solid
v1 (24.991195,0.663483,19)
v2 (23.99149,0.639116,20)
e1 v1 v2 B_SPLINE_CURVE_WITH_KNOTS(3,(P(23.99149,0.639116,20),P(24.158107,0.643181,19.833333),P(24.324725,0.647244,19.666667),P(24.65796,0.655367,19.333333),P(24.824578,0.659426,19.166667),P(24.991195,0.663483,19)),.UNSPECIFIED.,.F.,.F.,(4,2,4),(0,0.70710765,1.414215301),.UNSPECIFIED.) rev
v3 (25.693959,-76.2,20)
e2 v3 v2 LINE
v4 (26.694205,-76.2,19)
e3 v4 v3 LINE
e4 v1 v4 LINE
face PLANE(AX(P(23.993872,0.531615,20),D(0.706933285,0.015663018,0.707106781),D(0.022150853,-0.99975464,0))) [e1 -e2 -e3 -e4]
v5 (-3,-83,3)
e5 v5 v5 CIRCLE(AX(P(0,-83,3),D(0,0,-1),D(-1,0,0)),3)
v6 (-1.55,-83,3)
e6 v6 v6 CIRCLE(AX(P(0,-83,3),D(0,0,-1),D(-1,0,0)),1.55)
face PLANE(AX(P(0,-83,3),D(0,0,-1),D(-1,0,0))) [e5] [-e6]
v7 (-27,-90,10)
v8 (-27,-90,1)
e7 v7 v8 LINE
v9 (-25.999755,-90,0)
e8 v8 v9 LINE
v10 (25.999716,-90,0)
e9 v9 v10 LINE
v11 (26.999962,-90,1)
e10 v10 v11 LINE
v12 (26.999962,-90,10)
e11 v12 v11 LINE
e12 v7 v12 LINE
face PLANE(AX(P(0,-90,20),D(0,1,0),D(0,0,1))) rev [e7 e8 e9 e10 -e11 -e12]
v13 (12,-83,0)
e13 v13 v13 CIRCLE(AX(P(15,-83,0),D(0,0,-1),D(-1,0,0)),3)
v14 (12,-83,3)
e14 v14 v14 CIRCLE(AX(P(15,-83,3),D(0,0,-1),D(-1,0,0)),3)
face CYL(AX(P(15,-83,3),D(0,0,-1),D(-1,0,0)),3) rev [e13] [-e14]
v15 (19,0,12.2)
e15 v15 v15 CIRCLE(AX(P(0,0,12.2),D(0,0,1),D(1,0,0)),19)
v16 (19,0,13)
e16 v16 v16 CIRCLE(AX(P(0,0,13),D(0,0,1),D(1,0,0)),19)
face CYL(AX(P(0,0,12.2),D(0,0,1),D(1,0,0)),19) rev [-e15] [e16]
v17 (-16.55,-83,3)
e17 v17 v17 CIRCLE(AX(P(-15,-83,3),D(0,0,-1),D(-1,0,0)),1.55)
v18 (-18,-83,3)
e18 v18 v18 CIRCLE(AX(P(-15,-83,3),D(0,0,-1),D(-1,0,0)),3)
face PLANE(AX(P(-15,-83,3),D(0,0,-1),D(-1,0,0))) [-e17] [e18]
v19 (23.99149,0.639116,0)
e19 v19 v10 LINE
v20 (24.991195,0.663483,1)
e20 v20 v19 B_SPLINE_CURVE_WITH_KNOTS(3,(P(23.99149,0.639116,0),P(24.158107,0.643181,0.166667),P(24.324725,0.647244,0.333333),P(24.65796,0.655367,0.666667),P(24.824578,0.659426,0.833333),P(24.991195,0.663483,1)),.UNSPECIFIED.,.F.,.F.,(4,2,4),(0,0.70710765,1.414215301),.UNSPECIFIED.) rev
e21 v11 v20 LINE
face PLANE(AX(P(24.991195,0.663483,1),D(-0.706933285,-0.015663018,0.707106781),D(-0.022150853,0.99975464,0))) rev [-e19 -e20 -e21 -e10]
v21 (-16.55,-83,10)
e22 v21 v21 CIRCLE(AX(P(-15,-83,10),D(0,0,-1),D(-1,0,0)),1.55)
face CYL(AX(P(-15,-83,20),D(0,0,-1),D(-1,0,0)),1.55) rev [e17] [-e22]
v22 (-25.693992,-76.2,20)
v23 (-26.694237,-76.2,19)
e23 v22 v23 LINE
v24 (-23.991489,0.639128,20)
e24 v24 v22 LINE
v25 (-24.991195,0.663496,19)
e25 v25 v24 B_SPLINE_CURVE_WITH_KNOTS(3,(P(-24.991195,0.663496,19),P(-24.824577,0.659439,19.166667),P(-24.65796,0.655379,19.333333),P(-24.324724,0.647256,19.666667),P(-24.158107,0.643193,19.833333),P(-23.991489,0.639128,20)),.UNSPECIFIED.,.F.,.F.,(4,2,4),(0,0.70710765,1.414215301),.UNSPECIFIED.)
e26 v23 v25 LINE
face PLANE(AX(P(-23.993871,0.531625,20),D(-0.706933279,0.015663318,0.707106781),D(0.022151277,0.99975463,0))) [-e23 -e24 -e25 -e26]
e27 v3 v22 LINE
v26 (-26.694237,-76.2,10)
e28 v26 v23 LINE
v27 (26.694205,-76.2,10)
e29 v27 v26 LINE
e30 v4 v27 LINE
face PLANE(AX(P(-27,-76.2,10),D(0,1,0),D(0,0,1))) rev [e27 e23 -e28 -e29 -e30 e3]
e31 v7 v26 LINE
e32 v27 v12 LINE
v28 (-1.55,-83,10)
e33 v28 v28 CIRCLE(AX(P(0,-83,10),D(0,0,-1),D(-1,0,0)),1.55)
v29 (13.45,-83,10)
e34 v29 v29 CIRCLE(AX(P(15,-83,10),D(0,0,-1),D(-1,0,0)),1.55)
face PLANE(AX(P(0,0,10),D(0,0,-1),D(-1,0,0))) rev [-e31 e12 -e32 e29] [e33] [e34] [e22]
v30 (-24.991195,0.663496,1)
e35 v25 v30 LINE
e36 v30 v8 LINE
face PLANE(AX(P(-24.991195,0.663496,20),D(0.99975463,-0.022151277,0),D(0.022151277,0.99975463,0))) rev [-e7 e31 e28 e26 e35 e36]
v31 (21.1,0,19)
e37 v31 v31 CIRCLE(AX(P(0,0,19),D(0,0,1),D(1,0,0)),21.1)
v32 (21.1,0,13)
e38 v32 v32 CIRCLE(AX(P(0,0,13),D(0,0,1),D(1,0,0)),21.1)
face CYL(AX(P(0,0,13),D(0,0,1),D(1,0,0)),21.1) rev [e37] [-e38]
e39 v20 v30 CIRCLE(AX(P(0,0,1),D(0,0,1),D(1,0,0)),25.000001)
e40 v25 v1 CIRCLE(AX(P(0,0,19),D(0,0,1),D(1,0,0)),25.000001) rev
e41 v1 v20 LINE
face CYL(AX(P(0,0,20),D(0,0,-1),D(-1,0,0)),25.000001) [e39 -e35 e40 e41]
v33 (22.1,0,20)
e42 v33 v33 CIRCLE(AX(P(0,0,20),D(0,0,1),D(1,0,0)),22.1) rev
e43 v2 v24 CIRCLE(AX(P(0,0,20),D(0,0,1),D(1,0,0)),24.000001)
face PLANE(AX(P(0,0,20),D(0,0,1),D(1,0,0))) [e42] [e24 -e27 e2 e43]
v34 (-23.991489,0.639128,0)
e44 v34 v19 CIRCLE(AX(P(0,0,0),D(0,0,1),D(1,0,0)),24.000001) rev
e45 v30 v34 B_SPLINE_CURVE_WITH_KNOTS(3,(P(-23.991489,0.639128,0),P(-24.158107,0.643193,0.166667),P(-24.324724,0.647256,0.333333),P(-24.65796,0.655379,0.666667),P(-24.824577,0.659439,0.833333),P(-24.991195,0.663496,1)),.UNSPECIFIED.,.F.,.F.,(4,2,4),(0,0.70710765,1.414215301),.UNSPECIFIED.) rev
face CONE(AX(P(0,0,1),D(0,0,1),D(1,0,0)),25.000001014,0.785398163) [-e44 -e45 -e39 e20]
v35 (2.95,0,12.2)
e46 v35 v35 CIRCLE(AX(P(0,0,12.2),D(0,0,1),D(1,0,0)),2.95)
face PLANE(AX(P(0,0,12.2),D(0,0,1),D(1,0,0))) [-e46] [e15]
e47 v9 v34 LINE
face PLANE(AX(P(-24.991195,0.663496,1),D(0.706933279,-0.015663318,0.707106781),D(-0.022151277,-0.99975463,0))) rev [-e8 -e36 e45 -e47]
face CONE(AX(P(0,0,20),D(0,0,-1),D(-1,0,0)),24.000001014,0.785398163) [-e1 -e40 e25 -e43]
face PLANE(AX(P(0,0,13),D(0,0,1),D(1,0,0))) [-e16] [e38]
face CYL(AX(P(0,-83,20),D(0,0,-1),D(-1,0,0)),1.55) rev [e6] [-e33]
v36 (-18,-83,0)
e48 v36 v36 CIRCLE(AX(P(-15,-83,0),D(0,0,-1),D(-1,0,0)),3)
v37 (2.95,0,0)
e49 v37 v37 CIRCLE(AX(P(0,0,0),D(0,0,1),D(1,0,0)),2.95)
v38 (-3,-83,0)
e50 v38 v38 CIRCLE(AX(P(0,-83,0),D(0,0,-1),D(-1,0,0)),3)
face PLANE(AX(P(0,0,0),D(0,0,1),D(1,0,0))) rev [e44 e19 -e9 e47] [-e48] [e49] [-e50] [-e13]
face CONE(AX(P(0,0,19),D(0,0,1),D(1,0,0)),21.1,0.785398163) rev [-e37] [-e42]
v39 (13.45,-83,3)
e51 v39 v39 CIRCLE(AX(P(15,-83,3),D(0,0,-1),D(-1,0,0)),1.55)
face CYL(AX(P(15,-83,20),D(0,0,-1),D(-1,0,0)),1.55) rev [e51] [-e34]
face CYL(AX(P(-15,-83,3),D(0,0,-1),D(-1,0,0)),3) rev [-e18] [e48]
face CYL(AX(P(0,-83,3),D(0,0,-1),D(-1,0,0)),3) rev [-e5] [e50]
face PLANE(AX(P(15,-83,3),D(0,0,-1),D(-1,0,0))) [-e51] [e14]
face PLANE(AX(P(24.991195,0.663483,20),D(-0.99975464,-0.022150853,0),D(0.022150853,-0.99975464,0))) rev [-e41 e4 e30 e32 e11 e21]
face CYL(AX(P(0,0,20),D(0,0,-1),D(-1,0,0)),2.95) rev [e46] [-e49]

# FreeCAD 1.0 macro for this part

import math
import FreeCAD as App
import Part
import Sketcher


def edges_at(feature, points):
    """Names of the edges that pass closest to the given points."""
    edges = feature.Shape.Edges
    near = lambda p: min(range(len(edges)), key=lambda i: edges[i].distToShape(Part.Vertex(*p))[0])
    return sorted({f"Edge{near(p) + 1}" for p in points})

doc = App.newDocument("Part")
body = doc.addObject("PartDesign::Body", "Body")

# Sketch on XY plane
sketch1 = body.newObject("Sketcher::SketchObject", "Sketch")
sketch1.AttachmentSupport = (doc.getObject("XY_Plane"), [""])
sketch1.MapMode = "FlatFace"
sketch1.addGeometry([
    Part.LineSegment(App.Vector(-25, 0.7, 0), App.Vector(-27, -90, 0)),  # 0
    Part.LineSegment(App.Vector(-27, -90, 0), App.Vector(27, -90, 0)),  # 1
    Part.LineSegment(App.Vector(27, -90, 0), App.Vector(25, 0.7, 0)),  # 2
    Part.ArcOfCircle(Part.Circle(App.Vector(0, 0, 0), App.Vector(0, 0, 1), 25), math.radians(2), math.radians(178)),  # 3
    Part.Circle(App.Vector(-15, -83, 0), App.Vector(0, 0, 1), 1.6),  # 4
    Part.Circle(App.Vector(0, -83, 0), App.Vector(0, 0, 1), 1.6),  # 5
    Part.Circle(App.Vector(15, -83, 0), App.Vector(0, 0, 1), 1.6),  # 6
    Part.Circle(App.Vector(0, 0, 0), App.Vector(0, 0, 1), 3),  # 7
], False)
sketch1.addConstraint([
    Sketcher.Constraint("Coincident", 0, 2, 1, 1),
    Sketcher.Constraint("Coincident", 1, 2, 2, 1),
    Sketcher.Constraint("Coincident", 2, 2, 3, 1),
    Sketcher.Constraint("Coincident", 3, 2, 0, 1),
    Sketcher.Constraint("Horizontal", 1),
    Sketcher.Constraint("Coincident", 3, 3, -1, 1),
    Sketcher.Constraint("Coincident", 7, 3, -1, 1),
    Sketcher.Constraint("Equal", 4, 5),
    Sketcher.Constraint("Equal", 5, 6),
    Sketcher.Constraint("Symmetric", 4, 3, 6, 3, -2),
    Sketcher.Constraint("PointOnObject", 5, 3, -2),
    Sketcher.Constraint("Horizontal", 4, 3, 5, 3),
    Sketcher.Constraint("Radius", 3, 25.000001),
    Sketcher.Constraint("Diameter", 4, 3.1),
    Sketcher.Constraint("Diameter", 7, 5.9),
    Sketcher.Constraint("DistanceX", 4, 3, -1, 1, 15.0),
    Sketcher.Constraint("DistanceY", 4, 3, -1, 1, 83.0),
    Sketcher.Constraint("DistanceX", 0, 2, -1, 1, 27.0),
    Sketcher.Constraint("DistanceY", 0, 2, -1, 1, 90.0),
    Sketcher.Constraint("DistanceX", 1, 1, 1, 2, 53.999962),
    Sketcher.Constraint("DistanceX", 3, 2, 2, 2, 49.98239),
    Sketcher.Constraint("Distance", 0, 90.685748),
])
pad1 = body.newObject("PartDesign::Pad", "Pad")
pad1.Profile = sketch1
pad1.Length = 20

# Sketch on XY plane
sketch2 = body.newObject("Sketcher::SketchObject", "Sketch001")
sketch2.AttachmentSupport = (doc.getObject("XY_Plane"), [""])
sketch2.MapMode = "FlatFace"
sketch2.AttachmentOffset = App.Placement(App.Vector(0, 0, 20), App.Rotation())
sketch2.addGeometry([
    Part.LineSegment(App.Vector(-27, -76, 0), App.Vector(-27, -90, 0)),
    Part.LineSegment(App.Vector(-27, -90, 0), App.Vector(27, -90, 0)),
    Part.LineSegment(App.Vector(27, -90, 0), App.Vector(27, -76, 0)),
    Part.LineSegment(App.Vector(27, -76, 0), App.Vector(-27, -76, 0)),
], False)
sketch2.addConstraint([
    Sketcher.Constraint("Coincident", 0, 2, 1, 1),
    Sketcher.Constraint("Coincident", 1, 2, 2, 1),
    Sketcher.Constraint("Coincident", 2, 2, 3, 1),
    Sketcher.Constraint("Coincident", 3, 2, 0, 1),
    Sketcher.Constraint("Vertical", 0),
    Sketcher.Constraint("Horizontal", 1),
    Sketcher.Constraint("Vertical", 2),
    Sketcher.Constraint("Horizontal", 3),
    Sketcher.Constraint("DistanceY", 0, 2, 0, 1, 13.8),
    Sketcher.Constraint("DistanceX", 0, 2, -1, 1, 27.0),
    Sketcher.Constraint("DistanceY", 0, 2, -1, 1, 90.0),
    Sketcher.Constraint("DistanceX", 1, 1, 1, 2, 53.999962),
])
pocket1 = body.newObject("PartDesign::Pocket", "Pocket")
pocket1.Profile = sketch2
pocket1.Length = 10

# Sketch on XY plane
sketch3 = body.newObject("Sketcher::SketchObject", "Sketch002")
sketch3.AttachmentSupport = (doc.getObject("XY_Plane"), [""])
sketch3.MapMode = "FlatFace"
sketch3.AttachmentOffset = App.Placement(App.Vector(0, 0, 20), App.Rotation())
sketch3.addGeometry(Part.Circle(App.Vector(0, 0, 0), App.Vector(0, 0, 1), 21), False)
sketch3.addConstraint([
    Sketcher.Constraint("Coincident", 0, 3, -1, 1),
    Sketcher.Constraint("Diameter", 0, 42.2),
])
pocket2 = body.newObject("PartDesign::Pocket", "Pocket001")
pocket2.Profile = sketch3
pocket2.Length = 7

# Sketch on XY plane
sketch4 = body.newObject("Sketcher::SketchObject", "Sketch003")
sketch4.AttachmentSupport = (doc.getObject("XY_Plane"), [""])
sketch4.MapMode = "FlatFace"
sketch4.AttachmentOffset = App.Placement(App.Vector(0, 0, 13), App.Rotation())
sketch4.addGeometry(Part.Circle(App.Vector(0, 0, 0), App.Vector(0, 0, 1), 19), False)
sketch4.addConstraint([
    Sketcher.Constraint("Coincident", 0, 3, -1, 1),
    Sketcher.Constraint("Diameter", 0, 38.0),
])
pocket3 = body.newObject("PartDesign::Pocket", "Pocket002")
pocket3.Profile = sketch4
pocket3.Length = 0.8
doc.recompute()

chamfer = body.newObject("PartDesign::Chamfer", "Chamfer")
chamfer.Base = (pocket3, edges_at(pocket3, [
    (25.843, -37.768, 20),
    (0, 25, 20),
    (25.996, -44.668, 0),
    (-21.1, 0, 20),
    (-25.996, -44.668, 0),
    (0, 25, 0),
    (-25.843, -37.768, 20),
]))
chamfer.Size = 1

# Sketch on XY plane
sketch5 = body.newObject("Sketcher::SketchObject", "Sketch004")
sketch5.AttachmentSupport = (doc.getObject("XY_Plane"), [""])
sketch5.MapMode = "FlatFace"
sketch5.addGeometry([
    Part.Circle(App.Vector(15, -83, 0), App.Vector(0, 0, 1), 3),
    Part.Circle(App.Vector(0, -83, 0), App.Vector(0, 0, 1), 3),
    Part.Circle(App.Vector(-15, -83, 0), App.Vector(0, 0, 1), 3),
], False)
sketch5.addConstraint([
    Sketcher.Constraint("Equal", 0, 1),
    Sketcher.Constraint("Equal", 1, 2),
    Sketcher.Constraint("Symmetric", 0, 3, 2, 3, -2),
    Sketcher.Constraint("PointOnObject", 1, 3, -2),
    Sketcher.Constraint("Horizontal", 0, 3, 1, 3),
    Sketcher.Constraint("Diameter", 0, 6.0),
    Sketcher.Constraint("DistanceX", -1, 1, 0, 3, 15.0),
    Sketcher.Constraint("DistanceY", 0, 3, -1, 1, 83.0),
])
pocket4 = body.newObject("PartDesign::Pocket", "Pocket003")
pocket4.Profile = sketch5
pocket4.Length = 3
pocket4.Reversed = True

doc.recompute()
